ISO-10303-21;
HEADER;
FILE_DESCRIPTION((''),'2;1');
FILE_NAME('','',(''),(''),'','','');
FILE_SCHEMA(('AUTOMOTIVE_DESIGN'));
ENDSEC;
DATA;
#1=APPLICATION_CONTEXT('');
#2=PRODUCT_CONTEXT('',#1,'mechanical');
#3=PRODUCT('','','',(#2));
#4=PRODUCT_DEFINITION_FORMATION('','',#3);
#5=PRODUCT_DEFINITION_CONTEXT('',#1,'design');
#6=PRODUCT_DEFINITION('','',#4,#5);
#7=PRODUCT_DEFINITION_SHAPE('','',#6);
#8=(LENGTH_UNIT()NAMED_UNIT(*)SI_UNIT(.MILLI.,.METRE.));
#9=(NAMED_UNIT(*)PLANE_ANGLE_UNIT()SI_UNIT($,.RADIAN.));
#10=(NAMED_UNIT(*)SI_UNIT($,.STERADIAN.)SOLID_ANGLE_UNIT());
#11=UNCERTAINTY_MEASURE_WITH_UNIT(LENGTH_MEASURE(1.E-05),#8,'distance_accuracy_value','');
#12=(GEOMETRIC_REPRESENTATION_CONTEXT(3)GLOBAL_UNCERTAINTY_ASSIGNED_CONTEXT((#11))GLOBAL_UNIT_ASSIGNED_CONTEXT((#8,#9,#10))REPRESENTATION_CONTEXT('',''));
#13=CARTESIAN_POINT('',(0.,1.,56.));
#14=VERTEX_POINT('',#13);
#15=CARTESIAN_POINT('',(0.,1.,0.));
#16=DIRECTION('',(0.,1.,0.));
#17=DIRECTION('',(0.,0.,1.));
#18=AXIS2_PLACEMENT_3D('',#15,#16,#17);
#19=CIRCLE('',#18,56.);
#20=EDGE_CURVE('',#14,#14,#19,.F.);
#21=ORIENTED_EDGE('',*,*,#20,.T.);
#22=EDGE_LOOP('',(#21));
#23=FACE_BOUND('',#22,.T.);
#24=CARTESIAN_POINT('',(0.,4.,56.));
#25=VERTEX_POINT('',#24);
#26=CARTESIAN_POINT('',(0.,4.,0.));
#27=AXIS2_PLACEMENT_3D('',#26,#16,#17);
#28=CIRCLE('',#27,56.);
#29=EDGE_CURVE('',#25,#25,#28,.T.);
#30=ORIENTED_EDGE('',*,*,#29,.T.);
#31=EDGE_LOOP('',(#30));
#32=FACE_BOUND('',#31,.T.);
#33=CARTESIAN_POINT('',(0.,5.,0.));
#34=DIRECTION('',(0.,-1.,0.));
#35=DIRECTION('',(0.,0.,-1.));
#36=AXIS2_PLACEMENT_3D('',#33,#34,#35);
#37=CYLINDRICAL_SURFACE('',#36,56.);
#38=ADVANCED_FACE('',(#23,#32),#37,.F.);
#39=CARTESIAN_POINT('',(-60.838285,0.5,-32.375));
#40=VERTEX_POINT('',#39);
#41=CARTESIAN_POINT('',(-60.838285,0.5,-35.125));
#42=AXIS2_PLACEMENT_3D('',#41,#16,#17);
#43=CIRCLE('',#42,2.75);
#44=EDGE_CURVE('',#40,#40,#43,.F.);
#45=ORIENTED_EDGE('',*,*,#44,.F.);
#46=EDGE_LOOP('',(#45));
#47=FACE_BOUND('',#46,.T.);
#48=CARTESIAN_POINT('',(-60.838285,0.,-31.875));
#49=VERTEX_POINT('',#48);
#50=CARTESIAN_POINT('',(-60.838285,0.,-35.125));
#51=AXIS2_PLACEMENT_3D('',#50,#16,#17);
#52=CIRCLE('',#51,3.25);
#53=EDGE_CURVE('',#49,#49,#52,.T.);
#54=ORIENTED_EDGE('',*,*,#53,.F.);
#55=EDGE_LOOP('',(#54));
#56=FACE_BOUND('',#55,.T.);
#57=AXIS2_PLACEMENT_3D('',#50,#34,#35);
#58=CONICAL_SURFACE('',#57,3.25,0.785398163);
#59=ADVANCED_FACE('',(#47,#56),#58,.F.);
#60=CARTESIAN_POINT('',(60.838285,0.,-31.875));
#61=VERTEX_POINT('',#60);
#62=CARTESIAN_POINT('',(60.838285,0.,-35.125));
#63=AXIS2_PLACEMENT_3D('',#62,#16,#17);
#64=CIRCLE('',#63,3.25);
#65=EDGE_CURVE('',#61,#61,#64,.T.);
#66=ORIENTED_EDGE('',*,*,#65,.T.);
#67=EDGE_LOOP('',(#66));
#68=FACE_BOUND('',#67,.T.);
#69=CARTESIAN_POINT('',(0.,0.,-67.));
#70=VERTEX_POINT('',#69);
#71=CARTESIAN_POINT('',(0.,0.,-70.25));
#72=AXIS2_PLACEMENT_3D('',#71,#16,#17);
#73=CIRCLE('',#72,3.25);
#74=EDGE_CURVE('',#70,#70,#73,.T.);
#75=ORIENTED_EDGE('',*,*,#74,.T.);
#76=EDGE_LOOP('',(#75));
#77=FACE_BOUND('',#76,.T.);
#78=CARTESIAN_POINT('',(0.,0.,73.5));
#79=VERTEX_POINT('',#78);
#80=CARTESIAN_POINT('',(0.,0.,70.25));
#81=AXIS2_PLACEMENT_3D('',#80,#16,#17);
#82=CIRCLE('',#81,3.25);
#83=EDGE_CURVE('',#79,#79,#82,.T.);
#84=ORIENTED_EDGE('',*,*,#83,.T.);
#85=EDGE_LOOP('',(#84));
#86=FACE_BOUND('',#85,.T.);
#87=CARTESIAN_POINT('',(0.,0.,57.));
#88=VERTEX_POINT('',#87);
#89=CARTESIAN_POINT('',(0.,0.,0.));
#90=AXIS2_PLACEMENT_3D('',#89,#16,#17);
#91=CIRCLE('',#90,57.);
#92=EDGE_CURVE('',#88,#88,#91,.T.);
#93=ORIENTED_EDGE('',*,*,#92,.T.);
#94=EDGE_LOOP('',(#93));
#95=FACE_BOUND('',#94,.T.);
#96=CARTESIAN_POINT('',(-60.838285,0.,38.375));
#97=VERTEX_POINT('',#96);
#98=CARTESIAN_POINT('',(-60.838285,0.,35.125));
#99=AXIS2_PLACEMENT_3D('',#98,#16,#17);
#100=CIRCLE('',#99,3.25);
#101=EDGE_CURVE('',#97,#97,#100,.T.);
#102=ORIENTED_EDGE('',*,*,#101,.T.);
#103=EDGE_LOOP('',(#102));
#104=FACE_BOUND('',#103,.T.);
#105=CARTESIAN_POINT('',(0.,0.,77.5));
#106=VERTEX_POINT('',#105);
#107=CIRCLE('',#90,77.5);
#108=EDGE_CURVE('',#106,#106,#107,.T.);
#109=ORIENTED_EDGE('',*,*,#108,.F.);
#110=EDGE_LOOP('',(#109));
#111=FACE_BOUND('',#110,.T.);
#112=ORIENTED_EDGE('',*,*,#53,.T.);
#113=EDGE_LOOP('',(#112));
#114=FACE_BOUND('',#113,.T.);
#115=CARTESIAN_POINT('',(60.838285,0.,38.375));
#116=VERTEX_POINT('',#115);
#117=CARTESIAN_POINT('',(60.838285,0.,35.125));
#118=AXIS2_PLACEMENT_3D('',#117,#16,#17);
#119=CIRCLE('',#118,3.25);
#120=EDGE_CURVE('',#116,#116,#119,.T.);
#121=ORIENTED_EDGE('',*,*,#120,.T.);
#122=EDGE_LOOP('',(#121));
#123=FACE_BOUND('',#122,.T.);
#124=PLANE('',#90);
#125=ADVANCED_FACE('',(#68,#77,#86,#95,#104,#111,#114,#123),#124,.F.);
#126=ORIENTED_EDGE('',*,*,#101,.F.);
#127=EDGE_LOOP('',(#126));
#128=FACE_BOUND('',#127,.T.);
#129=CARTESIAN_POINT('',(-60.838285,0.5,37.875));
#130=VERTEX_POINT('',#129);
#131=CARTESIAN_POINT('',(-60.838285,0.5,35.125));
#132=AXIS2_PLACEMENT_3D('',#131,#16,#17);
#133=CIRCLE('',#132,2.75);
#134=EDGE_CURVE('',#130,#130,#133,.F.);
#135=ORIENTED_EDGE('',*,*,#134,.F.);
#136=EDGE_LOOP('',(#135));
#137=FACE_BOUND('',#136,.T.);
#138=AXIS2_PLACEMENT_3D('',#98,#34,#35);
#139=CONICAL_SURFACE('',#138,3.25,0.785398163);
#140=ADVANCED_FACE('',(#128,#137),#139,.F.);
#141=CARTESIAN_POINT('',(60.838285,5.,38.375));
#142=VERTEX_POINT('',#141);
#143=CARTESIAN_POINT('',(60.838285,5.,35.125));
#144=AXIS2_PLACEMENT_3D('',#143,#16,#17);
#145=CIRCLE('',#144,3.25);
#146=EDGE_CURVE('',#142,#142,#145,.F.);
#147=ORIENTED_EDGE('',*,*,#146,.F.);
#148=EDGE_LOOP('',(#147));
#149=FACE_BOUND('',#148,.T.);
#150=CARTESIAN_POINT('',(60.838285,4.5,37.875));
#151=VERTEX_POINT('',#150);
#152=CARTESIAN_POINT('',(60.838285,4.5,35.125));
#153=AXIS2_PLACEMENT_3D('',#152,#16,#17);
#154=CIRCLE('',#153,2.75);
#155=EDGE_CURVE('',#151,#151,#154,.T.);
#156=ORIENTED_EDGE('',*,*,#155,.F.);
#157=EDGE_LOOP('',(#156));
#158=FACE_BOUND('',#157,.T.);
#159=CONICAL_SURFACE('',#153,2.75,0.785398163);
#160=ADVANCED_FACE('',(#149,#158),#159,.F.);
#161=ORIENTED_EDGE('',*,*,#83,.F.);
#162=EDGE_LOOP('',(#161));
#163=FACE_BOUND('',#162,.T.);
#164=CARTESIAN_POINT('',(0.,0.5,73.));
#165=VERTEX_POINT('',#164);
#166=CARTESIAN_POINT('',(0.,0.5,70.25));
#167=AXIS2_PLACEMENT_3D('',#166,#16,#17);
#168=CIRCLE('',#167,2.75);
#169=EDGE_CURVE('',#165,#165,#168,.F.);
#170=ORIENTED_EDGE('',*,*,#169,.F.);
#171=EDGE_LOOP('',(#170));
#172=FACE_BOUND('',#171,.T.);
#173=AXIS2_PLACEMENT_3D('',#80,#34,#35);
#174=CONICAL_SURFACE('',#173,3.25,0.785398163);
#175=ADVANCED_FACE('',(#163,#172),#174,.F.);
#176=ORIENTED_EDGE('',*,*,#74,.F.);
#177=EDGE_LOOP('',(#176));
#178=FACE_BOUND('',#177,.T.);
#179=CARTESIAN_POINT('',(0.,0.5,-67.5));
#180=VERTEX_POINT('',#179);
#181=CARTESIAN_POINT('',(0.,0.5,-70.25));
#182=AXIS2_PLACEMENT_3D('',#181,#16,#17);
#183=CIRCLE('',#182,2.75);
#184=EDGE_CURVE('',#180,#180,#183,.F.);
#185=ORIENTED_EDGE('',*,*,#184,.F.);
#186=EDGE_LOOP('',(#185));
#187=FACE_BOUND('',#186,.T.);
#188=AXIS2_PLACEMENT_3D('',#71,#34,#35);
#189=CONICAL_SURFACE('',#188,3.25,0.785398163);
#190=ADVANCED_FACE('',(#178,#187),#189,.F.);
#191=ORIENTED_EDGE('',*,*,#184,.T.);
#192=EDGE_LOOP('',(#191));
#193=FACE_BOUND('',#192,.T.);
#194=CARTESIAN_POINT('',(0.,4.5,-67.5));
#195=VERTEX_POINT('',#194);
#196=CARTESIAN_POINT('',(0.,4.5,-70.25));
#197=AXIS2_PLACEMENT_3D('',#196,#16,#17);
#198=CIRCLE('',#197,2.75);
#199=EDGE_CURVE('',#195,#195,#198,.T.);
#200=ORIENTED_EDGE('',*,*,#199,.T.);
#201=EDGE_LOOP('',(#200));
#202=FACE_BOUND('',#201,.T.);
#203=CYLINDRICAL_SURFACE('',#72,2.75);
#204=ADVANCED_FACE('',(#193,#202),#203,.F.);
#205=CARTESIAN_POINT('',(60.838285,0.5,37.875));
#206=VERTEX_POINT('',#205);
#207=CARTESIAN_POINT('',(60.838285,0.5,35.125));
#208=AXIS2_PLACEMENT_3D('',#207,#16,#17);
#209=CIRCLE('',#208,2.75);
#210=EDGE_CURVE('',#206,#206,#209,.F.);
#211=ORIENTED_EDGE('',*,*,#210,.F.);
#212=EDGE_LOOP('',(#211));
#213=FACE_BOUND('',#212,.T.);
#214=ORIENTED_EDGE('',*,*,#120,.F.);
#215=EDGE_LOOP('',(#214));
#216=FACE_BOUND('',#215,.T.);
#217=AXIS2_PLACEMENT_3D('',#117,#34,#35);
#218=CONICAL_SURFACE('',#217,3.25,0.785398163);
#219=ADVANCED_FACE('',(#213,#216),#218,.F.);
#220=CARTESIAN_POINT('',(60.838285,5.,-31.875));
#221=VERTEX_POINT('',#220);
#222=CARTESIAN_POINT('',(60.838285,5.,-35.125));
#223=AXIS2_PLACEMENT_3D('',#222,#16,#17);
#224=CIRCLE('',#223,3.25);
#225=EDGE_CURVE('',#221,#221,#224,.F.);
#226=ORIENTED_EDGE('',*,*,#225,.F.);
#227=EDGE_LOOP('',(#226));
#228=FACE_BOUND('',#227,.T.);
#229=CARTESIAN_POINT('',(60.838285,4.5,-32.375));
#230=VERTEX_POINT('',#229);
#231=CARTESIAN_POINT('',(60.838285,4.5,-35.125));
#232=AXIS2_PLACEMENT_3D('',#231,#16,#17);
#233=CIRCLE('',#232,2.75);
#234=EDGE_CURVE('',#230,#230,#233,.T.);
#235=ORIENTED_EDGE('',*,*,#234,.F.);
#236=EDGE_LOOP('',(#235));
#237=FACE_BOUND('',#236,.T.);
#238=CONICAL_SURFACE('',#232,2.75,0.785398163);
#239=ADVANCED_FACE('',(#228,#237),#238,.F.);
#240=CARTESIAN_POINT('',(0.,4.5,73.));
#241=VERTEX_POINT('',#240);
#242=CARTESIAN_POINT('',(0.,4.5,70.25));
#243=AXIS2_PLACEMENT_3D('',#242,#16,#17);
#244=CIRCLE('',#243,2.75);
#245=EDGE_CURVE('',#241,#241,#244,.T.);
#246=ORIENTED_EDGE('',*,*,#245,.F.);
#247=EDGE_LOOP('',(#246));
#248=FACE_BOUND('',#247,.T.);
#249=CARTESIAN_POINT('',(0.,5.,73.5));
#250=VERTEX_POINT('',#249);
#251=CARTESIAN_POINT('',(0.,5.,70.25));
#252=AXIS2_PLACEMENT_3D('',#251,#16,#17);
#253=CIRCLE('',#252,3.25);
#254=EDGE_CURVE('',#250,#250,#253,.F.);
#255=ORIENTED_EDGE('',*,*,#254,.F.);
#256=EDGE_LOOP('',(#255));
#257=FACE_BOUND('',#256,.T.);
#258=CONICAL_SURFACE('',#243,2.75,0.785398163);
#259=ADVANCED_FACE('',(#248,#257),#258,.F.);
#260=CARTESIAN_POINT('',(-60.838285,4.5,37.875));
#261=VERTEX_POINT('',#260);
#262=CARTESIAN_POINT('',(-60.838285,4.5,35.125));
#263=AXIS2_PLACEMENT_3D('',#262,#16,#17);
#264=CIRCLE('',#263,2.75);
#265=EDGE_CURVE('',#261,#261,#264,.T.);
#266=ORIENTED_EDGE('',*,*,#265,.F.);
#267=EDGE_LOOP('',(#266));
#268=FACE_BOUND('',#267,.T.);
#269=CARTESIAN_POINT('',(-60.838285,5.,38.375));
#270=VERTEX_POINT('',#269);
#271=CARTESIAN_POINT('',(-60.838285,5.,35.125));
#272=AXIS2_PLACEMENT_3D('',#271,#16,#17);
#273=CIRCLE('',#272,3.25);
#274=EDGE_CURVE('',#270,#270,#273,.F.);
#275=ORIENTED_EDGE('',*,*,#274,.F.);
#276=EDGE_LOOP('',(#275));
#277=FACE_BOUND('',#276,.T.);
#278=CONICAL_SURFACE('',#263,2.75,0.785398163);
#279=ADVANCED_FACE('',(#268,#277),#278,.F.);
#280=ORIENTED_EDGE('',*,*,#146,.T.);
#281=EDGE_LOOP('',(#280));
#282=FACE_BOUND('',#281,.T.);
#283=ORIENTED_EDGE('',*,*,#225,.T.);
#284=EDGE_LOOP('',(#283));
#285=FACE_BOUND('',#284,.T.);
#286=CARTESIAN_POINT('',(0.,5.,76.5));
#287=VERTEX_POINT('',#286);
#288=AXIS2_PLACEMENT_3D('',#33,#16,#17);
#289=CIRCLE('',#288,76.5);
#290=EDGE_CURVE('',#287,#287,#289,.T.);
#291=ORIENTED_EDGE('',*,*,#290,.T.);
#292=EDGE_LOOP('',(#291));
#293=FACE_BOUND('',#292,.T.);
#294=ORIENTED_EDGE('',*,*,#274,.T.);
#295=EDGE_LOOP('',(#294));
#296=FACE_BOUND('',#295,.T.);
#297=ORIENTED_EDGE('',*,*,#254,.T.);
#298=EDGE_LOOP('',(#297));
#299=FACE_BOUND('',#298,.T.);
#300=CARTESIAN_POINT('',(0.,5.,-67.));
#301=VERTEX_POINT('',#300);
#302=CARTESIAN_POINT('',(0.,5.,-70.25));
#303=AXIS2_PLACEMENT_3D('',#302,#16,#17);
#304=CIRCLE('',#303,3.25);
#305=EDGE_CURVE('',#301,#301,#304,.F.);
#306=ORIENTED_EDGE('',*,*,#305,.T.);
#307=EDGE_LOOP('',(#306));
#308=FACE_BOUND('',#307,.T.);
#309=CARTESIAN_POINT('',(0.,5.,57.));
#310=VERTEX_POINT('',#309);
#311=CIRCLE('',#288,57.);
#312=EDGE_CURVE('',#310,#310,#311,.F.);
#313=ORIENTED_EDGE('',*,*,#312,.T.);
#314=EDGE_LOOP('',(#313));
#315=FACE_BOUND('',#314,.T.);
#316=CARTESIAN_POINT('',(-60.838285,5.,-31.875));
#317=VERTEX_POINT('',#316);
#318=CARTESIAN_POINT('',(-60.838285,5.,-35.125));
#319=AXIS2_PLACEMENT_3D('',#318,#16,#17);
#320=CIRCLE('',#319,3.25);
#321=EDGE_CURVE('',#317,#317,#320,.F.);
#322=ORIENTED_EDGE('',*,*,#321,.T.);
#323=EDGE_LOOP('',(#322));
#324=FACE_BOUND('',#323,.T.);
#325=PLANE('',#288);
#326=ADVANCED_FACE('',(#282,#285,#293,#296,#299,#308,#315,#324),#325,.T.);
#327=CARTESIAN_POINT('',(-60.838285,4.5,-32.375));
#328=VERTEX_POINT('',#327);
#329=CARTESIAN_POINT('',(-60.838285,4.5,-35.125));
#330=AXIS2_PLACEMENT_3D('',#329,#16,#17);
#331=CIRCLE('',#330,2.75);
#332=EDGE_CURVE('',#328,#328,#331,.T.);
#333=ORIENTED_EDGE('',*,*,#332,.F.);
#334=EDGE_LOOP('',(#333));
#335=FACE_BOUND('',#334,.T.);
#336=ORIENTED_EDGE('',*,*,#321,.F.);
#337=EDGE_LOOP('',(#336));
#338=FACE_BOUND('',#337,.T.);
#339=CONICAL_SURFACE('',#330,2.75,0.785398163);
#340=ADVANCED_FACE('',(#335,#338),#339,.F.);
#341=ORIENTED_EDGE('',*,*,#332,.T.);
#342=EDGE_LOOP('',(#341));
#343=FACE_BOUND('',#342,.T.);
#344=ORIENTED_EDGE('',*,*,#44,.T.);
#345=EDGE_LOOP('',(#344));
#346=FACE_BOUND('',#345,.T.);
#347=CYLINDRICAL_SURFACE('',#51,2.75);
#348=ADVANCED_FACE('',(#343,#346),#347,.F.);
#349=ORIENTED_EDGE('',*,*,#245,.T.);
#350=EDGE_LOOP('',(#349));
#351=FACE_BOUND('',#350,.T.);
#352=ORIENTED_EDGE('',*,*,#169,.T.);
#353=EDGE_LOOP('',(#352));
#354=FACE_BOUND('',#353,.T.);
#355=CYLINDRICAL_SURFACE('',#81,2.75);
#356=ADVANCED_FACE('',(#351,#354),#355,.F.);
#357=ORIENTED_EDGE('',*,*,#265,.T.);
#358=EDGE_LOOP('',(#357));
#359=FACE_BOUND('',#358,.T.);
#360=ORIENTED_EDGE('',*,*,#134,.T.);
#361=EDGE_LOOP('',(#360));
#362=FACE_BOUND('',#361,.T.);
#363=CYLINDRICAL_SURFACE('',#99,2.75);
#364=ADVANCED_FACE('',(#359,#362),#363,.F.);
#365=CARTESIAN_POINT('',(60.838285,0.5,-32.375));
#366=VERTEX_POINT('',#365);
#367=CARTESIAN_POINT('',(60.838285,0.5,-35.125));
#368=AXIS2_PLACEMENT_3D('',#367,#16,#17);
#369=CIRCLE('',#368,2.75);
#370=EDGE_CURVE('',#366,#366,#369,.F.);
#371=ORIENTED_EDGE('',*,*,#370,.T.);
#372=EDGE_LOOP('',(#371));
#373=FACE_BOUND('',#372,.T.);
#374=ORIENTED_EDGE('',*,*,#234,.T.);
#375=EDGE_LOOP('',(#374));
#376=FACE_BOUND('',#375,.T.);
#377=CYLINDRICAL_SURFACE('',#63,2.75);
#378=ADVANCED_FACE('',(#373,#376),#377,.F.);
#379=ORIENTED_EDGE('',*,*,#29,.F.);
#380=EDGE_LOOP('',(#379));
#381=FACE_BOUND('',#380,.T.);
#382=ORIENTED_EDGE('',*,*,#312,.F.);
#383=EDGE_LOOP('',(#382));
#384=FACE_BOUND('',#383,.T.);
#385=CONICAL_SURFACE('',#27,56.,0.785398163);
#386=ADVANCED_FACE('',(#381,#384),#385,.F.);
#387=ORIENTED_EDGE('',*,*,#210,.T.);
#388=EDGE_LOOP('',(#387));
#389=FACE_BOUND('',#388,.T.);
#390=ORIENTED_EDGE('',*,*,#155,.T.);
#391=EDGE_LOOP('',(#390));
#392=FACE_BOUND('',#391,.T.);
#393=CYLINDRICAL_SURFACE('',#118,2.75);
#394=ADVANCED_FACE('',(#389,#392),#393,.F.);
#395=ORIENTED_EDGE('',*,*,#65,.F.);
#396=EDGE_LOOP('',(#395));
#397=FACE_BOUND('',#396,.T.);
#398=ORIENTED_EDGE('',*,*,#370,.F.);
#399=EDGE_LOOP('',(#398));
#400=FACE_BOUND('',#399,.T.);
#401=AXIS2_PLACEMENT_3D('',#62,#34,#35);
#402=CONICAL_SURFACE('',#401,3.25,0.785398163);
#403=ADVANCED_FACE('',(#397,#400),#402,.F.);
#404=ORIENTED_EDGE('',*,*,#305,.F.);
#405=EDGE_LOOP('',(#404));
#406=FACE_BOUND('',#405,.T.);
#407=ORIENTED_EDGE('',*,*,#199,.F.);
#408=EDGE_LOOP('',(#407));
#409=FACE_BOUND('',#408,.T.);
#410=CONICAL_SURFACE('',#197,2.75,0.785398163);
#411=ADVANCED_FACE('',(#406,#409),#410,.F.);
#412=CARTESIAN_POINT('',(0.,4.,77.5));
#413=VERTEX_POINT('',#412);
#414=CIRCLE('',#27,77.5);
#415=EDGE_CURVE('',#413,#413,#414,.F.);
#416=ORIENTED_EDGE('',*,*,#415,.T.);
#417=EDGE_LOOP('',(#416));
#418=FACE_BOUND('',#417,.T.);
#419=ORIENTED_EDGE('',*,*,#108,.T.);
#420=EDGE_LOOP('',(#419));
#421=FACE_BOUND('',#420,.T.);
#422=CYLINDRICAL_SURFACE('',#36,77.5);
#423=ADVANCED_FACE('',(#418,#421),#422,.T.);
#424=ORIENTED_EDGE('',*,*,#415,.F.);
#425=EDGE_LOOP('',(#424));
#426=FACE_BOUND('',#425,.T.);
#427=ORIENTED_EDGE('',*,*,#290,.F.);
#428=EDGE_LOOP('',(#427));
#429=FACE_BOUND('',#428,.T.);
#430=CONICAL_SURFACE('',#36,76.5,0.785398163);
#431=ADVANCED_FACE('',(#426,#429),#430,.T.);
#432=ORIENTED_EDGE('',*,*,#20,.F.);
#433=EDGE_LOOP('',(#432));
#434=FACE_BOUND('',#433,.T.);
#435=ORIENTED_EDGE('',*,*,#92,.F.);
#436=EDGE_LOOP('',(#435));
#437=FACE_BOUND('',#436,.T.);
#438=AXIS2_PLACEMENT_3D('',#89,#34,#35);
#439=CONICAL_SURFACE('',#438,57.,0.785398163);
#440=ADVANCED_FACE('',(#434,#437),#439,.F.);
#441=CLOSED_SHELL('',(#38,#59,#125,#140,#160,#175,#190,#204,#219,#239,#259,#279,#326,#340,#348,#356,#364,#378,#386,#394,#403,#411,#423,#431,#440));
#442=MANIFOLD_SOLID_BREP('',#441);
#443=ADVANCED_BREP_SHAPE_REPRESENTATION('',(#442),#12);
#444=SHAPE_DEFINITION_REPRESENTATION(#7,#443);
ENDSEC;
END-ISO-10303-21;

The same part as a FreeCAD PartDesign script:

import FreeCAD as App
import Part
import Sketcher
Q = App.Units.Quantity


def edges_at(feature, points):
    """Names of the edges that pass closest to the given points."""
    edges = feature.Shape.Edges
    near = lambda p: min(range(len(edges)), key=lambda i: edges[i].distToShape(Part.Vertex(*p))[0])
    return sorted({f"Edge{near(p) + 1}" for p in points})

doc = App.newDocument("Part")
body = doc.addObject("PartDesign::Body", "Body")

# Sketch on XZ plane
sketch1 = body.newObject("Sketcher::SketchObject", "Sketch")
sketch1.AttachmentSupport = (doc.getObject("XZ_Plane"), [""])
sketch1.MapMode = "FlatFace"
sketch1.addGeometry([
    Part.Circle(App.Vector(0, 0, 0), App.Vector(0, 0, 1), 78),
    Part.Circle(App.Vector(0, 0, 0), App.Vector(0, 0, 1), 56),
], False)
sketch1.addConstraint([
    Sketcher.Constraint("Coincident", 0, 3, -1, 1),
    Sketcher.Constraint("Coincident", 1, 3, -1, 1),
    Sketcher.Constraint("Diameter", 0, Q("155 mm")),
    Sketcher.Constraint("Diameter", 1, Q("112 mm")),
])
pad1 = body.newObject("PartDesign::Pad", "Pad")
pad1.Profile = sketch1
pad1.Length = 5
pad1.Reversed = True

# Sketch on XZ plane
sketch2 = body.newObject("Sketcher::SketchObject", "Sketch001")
sketch2.AttachmentSupport = (doc.getObject("XZ_Plane"), [""])
sketch2.MapMode = "FlatFace"
sketch2.AttachmentOffset = App.Placement(App.Vector(0, 0, -5), App.Rotation())
sketch2.addGeometry(Part.Circle(App.Vector(0, -70.2, 0), App.Vector(0, 0, 1), 2.8), False)
sketch2.addConstraint([
    Sketcher.Constraint("PointOnObject", 0, 3, -2),
    Sketcher.Constraint("Diameter", 0, Q("5.5 mm")),
    Sketcher.Constraint("DistanceY", 0, 3, -1, 1, Q("70.25 mm")),
])
pocket1 = body.newObject("PartDesign::Pocket", "Pocket")
pocket1.Profile = sketch2
pocket1.Type = "ThroughAll"
pocket1.Reversed = True
doc.recompute()

chamfer = body.newObject("PartDesign::Chamfer", "Chamfer")
chamfer.Base = (pocket1, edges_at(pocket1, [(0, 0, -73), (0, 5, -73)]))
chamfer.Size = 0.5
doc.recompute()

polarpattern = body.newObject("PartDesign::PolarPattern", "PolarPattern")
polarpattern.Originals = [pocket1]
polarpattern.Axis = (doc.getObject("Y_Axis"), [""])
polarpattern.Angle = 360
polarpattern.Occurrences = 6
body.Tip = polarpattern
doc.recompute()

chamfer2 = body.newObject("PartDesign::Chamfer", "Chamfer001")
chamfer2.Base = (polarpattern, edges_at(polarpattern, [
    (-63.22, 0, -36.5),
    (-63.22, 5, -36.5),
    (-63.22, 0, 36.5),
    (-63.22, 5, 36.5),
    (0, 0, 73),
    (0, 5, 73),
    (63.22, 0, 36.5),
    (63.22, 5, 36.5),
    (63.22, 0, -36.5),
    (63.22, 5, -36.5),
]))
chamfer2.Size = 0.5
doc.recompute()

chamfer3 = body.newObject("PartDesign::Chamfer", "Chamfer002")
chamfer3.Base = (chamfer2, edges_at(chamfer2, [(0, 5, -77.5), (0, 0, -56), (0, 5, -56)]))
chamfer3.Size = 1

doc.recompute()
